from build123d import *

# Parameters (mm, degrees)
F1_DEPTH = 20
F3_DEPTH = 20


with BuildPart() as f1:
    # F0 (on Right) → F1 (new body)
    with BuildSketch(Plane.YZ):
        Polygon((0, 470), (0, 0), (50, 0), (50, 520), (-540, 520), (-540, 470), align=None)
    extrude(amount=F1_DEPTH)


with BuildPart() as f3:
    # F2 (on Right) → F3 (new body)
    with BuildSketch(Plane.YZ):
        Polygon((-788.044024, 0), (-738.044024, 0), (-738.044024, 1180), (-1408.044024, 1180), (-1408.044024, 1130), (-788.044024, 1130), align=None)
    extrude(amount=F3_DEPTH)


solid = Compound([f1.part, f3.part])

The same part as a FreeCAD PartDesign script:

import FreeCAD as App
import Part
import Sketcher
from FreeCAD import Vector
Q = App.Units.Quantity


def add_polygon(sketch, points):
    """Adds a closed chain of lines whose ends are joined by coincident constraints."""
    first, n = sketch.GeometryCount, len(points)
    for a, b in zip(points, points[1:] + points[:1]):
        sketch.addGeometry(Part.LineSegment(App.Vector(*a, 0), App.Vector(*b, 0)), False)
    for i in range(n):
        sketch.addConstraint(Sketcher.Constraint("Coincident", first + i, 2, first + (i + 1) % n, 1))

doc = App.newDocument("Part")
params = doc.addObject("Spreadsheet::Sheet", "Params")
for row, (alias, value) in enumerate([
    ("sketch1_width", "50 mm"),
    ("sketch1_width2", "590 mm"),
    ("sketch1_height", "470 mm"),
    ("pad1_length", "20 mm"),
    ("sketch2_width", "50 mm"),
    ("sketch2_width2", "670 mm"),
    ("sketch2_height", "1180 mm"),
    ("pad2_length", "20 mm"),
], start=1):
    params.set(f"A{row}", alias)
    params.set(f"B{row}", "=" + value)
    params.setAlias(f"B{row}", alias)

body = doc.addObject("PartDesign::Body", "Body")

sketch1 = body.newObject("Sketcher::SketchObject", "Sketch")
sketch1.AttachmentSupport = (doc.getObject("YZ_Plane"), [""])
sketch1.MapMode = "FlatFace"
add_polygon(sketch1, [(0, 470), (0, 0), (50, 0), (50, 520), (-540, 520), (-540, 470)])
sketch1.addConstraint([
    Sketcher.Constraint("Vertical", 0),
    Sketcher.Constraint("Horizontal", 1),
    Sketcher.Constraint("Vertical", 2),
    Sketcher.Constraint("Horizontal", 3),
    Sketcher.Constraint("Vertical", 4),
    Sketcher.Constraint("Horizontal", 5),
    Sketcher.Constraint("Coincident", 0, 2, -1, 1),
    Sketcher.Constraint("Equal", 1, 4),
    Sketcher.Constraint("DistanceX", 1, 1, 1, 2, Q("50 mm")),
    Sketcher.Constraint("DistanceX", 3, 2, 3, 1, Q("590 mm")),
    Sketcher.Constraint("DistanceY", 0, 2, 0, 1, Q("470 mm")),
])
sketch1.setExpression("Constraints[14]", "Params.sketch1_width")
sketch1.setExpression("Constraints[15]", "Params.sketch1_width2")
sketch1.setExpression("Constraints[16]", "Params.sketch1_height")
pad1 = body.newObject("PartDesign::Pad", "Pad")
pad1.Profile = sketch1
pad1.setExpression("Length", "Params.pad1_length")
body2 = doc.addObject("PartDesign::Body", "Body001")

sketch2 = body2.newObject("Sketcher::SketchObject", "Sketch001")
sketch2.AttachmentSupport = (doc.getObject("YZ_Plane001"), [""])
sketch2.MapMode = "FlatFace"
add_polygon(sketch2, [(-788, 0), (-738, 0), (-738, 1180), (-1408, 1180), (-1408, 1130), (-788, 1130)])
sketch2.addConstraint([
    Sketcher.Constraint("Horizontal", 0),
    Sketcher.Constraint("Vertical", 1),
    Sketcher.Constraint("Horizontal", 2),
    Sketcher.Constraint("Vertical", 3),
    Sketcher.Constraint("Horizontal", 4),
    Sketcher.Constraint("Vertical", 5),
    Sketcher.Constraint("PointOnObject", 0, 2, -1),
    Sketcher.Constraint("Equal", 0, 3),
    Sketcher.Constraint("DistanceX", 0, 1, 0, 2, Q("50 mm")),
    Sketcher.Constraint("DistanceX", 2, 2, 2, 1, Q("670 mm")),
    Sketcher.Constraint("DistanceY", 1, 1, 1, 2, Q("1180 mm")),
    Sketcher.Constraint("DistanceX", 0, 2, -1, 1, Q("738.044024 mm")),
])
sketch2.setExpression("Constraints[14]", "Params.sketch2_width")
sketch2.setExpression("Constraints[15]", "Params.sketch2_width2")
sketch2.setExpression("Constraints[16]", "Params.sketch2_height")
pad2 = body2.newObject("PartDesign::Pad", "Pad001")
pad2.Profile = sketch2
pad2.setExpression("Length", "Params.pad2_length")

doc.recompute()
